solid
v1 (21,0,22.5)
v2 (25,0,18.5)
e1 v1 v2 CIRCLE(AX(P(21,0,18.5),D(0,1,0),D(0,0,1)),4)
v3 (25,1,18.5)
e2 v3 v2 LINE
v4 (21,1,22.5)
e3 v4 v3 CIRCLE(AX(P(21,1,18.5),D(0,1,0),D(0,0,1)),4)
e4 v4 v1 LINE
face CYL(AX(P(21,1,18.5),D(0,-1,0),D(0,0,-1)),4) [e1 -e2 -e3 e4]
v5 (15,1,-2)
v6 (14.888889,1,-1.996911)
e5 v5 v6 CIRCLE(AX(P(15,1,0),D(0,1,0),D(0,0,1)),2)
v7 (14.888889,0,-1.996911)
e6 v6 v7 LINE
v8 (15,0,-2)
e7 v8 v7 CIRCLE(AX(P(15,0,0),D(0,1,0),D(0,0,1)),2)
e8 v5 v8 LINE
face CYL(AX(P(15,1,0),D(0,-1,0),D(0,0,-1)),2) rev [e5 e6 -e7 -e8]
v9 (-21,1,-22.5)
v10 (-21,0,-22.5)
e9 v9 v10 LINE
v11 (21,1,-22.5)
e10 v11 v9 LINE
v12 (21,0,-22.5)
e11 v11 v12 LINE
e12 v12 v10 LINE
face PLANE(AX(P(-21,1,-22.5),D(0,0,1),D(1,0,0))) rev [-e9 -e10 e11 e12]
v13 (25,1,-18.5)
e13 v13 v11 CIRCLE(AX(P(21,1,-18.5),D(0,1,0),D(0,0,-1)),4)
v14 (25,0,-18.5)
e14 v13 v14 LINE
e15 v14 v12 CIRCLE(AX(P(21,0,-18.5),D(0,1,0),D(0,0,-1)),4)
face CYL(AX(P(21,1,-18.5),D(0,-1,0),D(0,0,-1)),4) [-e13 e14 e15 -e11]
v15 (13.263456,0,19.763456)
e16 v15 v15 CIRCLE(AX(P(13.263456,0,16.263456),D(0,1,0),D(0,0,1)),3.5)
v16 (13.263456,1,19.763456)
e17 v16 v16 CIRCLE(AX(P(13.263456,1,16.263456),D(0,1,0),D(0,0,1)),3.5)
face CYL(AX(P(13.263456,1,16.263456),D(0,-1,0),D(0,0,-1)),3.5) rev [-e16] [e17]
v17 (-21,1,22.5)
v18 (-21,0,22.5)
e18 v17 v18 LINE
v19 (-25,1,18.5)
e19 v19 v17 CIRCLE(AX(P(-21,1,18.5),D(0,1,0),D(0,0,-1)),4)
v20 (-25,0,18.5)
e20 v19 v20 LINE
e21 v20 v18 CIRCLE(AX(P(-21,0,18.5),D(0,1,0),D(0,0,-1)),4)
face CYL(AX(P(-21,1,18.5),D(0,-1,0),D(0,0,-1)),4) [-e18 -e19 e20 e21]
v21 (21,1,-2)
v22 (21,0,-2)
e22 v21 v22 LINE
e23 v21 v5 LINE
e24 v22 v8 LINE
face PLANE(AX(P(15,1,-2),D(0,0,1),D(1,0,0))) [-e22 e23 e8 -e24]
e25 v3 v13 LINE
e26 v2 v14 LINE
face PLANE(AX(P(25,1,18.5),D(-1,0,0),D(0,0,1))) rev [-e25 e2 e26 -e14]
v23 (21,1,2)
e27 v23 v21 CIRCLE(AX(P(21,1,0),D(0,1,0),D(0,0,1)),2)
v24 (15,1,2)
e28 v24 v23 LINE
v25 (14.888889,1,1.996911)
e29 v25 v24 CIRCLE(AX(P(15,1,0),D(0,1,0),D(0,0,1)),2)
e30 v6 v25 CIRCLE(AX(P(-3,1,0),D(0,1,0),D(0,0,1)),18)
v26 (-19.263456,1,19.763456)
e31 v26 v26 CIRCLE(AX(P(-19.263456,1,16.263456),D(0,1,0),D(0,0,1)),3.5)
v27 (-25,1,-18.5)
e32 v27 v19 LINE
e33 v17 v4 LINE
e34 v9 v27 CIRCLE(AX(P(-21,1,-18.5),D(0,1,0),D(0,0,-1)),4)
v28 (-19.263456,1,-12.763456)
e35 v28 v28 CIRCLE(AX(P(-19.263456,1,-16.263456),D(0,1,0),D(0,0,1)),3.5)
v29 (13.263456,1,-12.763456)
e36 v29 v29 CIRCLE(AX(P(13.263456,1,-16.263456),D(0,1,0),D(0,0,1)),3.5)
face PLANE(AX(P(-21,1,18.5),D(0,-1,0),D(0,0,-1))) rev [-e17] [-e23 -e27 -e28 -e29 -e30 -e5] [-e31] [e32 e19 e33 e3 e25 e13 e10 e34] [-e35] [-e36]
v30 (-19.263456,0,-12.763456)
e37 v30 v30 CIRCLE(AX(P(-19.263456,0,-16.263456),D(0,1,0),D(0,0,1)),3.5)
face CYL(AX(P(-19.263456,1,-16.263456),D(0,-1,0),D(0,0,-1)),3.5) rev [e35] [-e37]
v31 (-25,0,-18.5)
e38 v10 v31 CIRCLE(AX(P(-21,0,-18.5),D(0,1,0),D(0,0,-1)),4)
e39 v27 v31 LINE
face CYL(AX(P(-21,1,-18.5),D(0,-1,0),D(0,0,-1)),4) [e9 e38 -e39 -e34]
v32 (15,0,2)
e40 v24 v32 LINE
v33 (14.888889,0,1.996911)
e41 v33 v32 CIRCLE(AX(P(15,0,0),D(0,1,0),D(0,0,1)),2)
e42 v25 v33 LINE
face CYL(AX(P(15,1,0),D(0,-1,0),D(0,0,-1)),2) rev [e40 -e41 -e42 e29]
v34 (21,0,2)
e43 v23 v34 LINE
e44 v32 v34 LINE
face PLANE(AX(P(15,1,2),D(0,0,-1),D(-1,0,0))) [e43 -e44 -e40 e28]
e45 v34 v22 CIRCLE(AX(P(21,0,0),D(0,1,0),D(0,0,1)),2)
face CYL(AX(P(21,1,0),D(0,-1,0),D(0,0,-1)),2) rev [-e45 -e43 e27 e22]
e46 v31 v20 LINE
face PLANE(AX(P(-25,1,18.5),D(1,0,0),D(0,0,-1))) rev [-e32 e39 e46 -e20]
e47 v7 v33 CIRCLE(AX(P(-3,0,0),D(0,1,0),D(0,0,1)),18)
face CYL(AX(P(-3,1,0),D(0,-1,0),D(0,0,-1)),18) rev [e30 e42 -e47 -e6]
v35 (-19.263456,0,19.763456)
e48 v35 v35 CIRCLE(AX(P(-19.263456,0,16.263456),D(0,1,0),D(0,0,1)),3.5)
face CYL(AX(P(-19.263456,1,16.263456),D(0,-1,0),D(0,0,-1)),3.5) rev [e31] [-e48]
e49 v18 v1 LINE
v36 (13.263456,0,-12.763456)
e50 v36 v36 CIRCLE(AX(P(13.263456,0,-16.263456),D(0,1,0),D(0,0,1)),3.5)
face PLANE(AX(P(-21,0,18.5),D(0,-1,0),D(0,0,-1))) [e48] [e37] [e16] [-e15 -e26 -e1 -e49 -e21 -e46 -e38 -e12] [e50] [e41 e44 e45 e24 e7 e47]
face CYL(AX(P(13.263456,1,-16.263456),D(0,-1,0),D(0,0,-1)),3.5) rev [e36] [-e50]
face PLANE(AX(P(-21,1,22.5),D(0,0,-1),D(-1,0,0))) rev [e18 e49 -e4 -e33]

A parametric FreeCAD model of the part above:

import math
import FreeCAD as App
import Part
import Sketcher

doc = App.newDocument("Part")
body = doc.addObject("PartDesign::Body", "Body")

sketch1 = doc.addObject("Sketcher::SketchObject", "Sketch")
body.addObject(sketch1)
sketch1.AttachmentSupport = (doc.XZ_Plane, [""])
sketch1.MapMode = "FlatFace"
sketch1.addGeometry([
    Part.LineSegment(App.Vector(-21, 22.5, 0), App.Vector(21, 22.5, 0)),
    Part.ArcOfCircle(Part.Circle(App.Vector(21, 18.5, 0), App.Vector(0, 0, 1), 4), math.radians(0), math.radians(90)),
    Part.LineSegment(App.Vector(25, 18.5, 0), App.Vector(25, -18.5, 0)),
    Part.ArcOfCircle(Part.Circle(App.Vector(21, -18.5, 0), App.Vector(0, 0, 1), 4), math.radians(-90), math.radians(0)),
    Part.LineSegment(App.Vector(21, -22.5, 0), App.Vector(-21, -22.5, 0)),
    Part.ArcOfCircle(Part.Circle(App.Vector(-21, -18.5, 0), App.Vector(0, 0, 1), 4), math.radians(180), math.radians(270)),
    Part.LineSegment(App.Vector(-25, -18.5, 0), App.Vector(-25, 18.5, 0)),
    Part.ArcOfCircle(Part.Circle(App.Vector(-21, 18.5, 0), App.Vector(0, 0, 1), 4), math.radians(90), math.radians(180)),
    Part.Circle(App.Vector(-19.26, 16.26, 0), App.Vector(0, 0, 1), 3.5),
    Part.Circle(App.Vector(13.26, 16.26, 0), App.Vector(0, 0, 1), 3.5),
    Part.ArcOfCircle(Part.Circle(App.Vector(15, 0, 0), App.Vector(0, 0, 1), 2), math.radians(-93.18), math.radians(-90)),
    Part.LineSegment(App.Vector(15, -2, 0), App.Vector(21, -2, 0)),
    Part.ArcOfCircle(Part.Circle(App.Vector(21, 0, 0), App.Vector(0, 0, 1), 2), math.radians(-90), math.radians(90)),
    Part.LineSegment(App.Vector(21, 2, 0), App.Vector(15, 2, 0)),
    Part.ArcOfCircle(Part.Circle(App.Vector(15, 0, 0), App.Vector(0, 0, 1), 2), math.radians(90), math.radians(93.18)),
    Part.ArcOfCircle(Part.Circle(App.Vector(-3, 0, 0), App.Vector(0, 0, 1), 18), math.radians(6), math.radians(354)),
    Part.Circle(App.Vector(-19.26, -16.26, 0), App.Vector(0, 0, 1), 3.5),
    Part.Circle(App.Vector(13.26, -16.26, 0), App.Vector(0, 0, 1), 3.5),
], False)
sketch1.addConstraint([
    Sketcher.Constraint("Tangent", 0, 2, 1, 2),
    Sketcher.Constraint("Tangent", 1, 1, 2, 1),
    Sketcher.Constraint("Tangent", 2, 2, 3, 2),
    Sketcher.Constraint("Tangent", 3, 1, 4, 1),
    Sketcher.Constraint("Tangent", 4, 2, 5, 2),
    Sketcher.Constraint("Tangent", 5, 1, 6, 1),
    Sketcher.Constraint("Tangent", 6, 2, 7, 2),
    Sketcher.Constraint("Tangent", 7, 1, 0, 1),
    Sketcher.Constraint("Tangent", 10, 2, 11, 1),
    Sketcher.Constraint("Tangent", 11, 2, 12, 1),
    Sketcher.Constraint("Tangent", 12, 2, 13, 1),
    Sketcher.Constraint("Tangent", 13, 2, 14, 1),
    Sketcher.Constraint("Coincident", 14, 2, 15, 1),
    Sketcher.Constraint("Coincident", 15, 2, 10, 1),
    Sketcher.Constraint("Horizontal", 0),
    Sketcher.Constraint("Vertical", 2),
    Sketcher.Constraint("Horizontal", 4),
    Sketcher.Constraint("Vertical", 6),
    Sketcher.Constraint("Horizontal", 11),
    Sketcher.Constraint("Horizontal", 13),
    Sketcher.Constraint("Coincident", 14, 3, 10, 3),
    Sketcher.Constraint("Equal", 1, 3),
    Sketcher.Constraint("Equal", 3, 5),
    Sketcher.Constraint("Equal", 5, 7),
    Sketcher.Constraint("Equal", 8, 9),
    Sketcher.Constraint("Equal", 10, 12),
    Sketcher.Constraint("Equal", 9, 16),
    Sketcher.Constraint("Equal", 16, 17),
    Sketcher.Constraint("Symmetric", 1, 3, 5, 3, -1, 1),
    Sketcher.Constraint("Symmetric", 8, 3, 16, 3, -1),
    Sketcher.Constraint("Symmetric", 9, 3, 17, 3, -1),
    Sketcher.Constraint("Symmetric", 14, 2, 15, 2, -1),
    Sketcher.Constraint("Horizontal", 8, 3, 9, 3),
    Sketcher.Constraint("Vertical", 3, 3, 12, 3),
    Sketcher.Constraint("Diameter", 8, 7.0),
    Sketcher.Constraint("Radius", 1, 4.0),
    Sketcher.Constraint("Radius", 10, 1.999999),
    Sketcher.Constraint("Radius", 15, 18.0),
    Sketcher.Constraint("DistanceX", 0, 1, 0, 2, 42.0),
    Sketcher.Constraint("DistanceX", 11, 1, 11, 2, 6.0),
    Sketcher.Constraint("DistanceY", 2, 2, 2, 1, 37.0),
    Sketcher.Constraint("DistanceX", 15, 3, -1, 1, 3.0),
    Sketcher.Constraint("DistanceX", 8, 3, 9, 3, 32.526912),
    Sketcher.Constraint("DistanceY", 16, 3, 8, 3, 32.526912),
    Sketcher.Constraint("DistanceX", 8, 3, -1, 1, 19.263456),
])
pad1 = doc.addObject("PartDesign::Pad", "Pad")
body.addObject(pad1)
pad1.Profile = sketch1
pad1.Length = 1
pad1.Reversed = True

doc.recompute()
